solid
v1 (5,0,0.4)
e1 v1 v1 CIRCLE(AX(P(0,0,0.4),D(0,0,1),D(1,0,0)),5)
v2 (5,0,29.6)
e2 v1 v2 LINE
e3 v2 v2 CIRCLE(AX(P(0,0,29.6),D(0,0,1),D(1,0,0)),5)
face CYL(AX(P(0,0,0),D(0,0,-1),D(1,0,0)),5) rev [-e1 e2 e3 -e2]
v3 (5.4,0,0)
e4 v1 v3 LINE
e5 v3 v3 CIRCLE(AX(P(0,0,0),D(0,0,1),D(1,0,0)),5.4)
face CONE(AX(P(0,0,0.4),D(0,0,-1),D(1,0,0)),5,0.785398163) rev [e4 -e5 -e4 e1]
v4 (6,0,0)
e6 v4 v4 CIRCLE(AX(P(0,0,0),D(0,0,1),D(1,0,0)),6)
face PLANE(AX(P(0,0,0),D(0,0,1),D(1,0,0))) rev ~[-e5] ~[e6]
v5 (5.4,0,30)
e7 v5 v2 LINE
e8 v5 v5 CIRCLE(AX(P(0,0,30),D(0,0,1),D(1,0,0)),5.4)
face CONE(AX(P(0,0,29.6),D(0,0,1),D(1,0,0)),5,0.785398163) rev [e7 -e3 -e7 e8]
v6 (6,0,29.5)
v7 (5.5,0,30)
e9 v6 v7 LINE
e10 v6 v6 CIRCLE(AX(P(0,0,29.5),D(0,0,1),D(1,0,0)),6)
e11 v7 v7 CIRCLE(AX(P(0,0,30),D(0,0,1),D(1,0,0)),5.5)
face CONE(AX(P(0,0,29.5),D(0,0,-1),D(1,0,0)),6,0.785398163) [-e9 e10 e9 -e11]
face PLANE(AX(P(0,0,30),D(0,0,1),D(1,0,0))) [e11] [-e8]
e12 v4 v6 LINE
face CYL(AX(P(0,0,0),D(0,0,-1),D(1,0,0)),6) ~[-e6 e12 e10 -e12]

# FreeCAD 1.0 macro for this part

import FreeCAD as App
import Part
import Sketcher


def edges_at(feature, points):
    """Names of the edges that pass closest to the given points."""
    edges = feature.Shape.Edges
    near = lambda p: min(range(len(edges)), key=lambda i: edges[i].distToShape(Part.Vertex(*p))[0])
    return sorted({f"Edge{near(p) + 1}" for p in points})

doc = App.newDocument("Part")
params = doc.addObject("Spreadsheet::Sheet", "Params")
for row, (alias, value) in enumerate([
    ("sketch1_diameter", "12 mm"),
    ("sketch1_diameter2", "10 mm"),
    ("pad1_length", "30 mm"),
    ("chamfer_size", "0.5 mm"),
    ("chamfer2_size", "0.4 mm"),
    ("chamfer3_size", "0.4 mm"),
], start=1):
    params.set(f"A{row}", alias)
    params.set(f"B{row}", "=" + value)
    params.setAlias(f"B{row}", alias)

body = doc.addObject("PartDesign::Body", "Body")

sketch1 = body.newObject("Sketcher::SketchObject", "Sketch")
sketch1.AttachmentSupport = (doc.getObject("XY_Plane"), [""])
sketch1.MapMode = "FlatFace"
sketch1.addGeometry([
    Part.Circle(App.Vector(0, 0, 0), App.Vector(0, 0, 1), 6),
    Part.Circle(App.Vector(0, 0, 0), App.Vector(0, 0, 1), 5),
], False)
sketch1.addConstraint([
    Sketcher.Constraint("Coincident", 0, 3, -1, 1),
    Sketcher.Constraint("Coincident", 1, 3, -1, 1),
    Sketcher.Constraint("Diameter", 0, 12.0),
    Sketcher.Constraint("Diameter", 1, 10.0),
])
sketch1.setExpression("Constraints[2]", "Params.sketch1_diameter")
sketch1.setExpression("Constraints[3]", "Params.sketch1_diameter2")
pad1 = body.newObject("PartDesign::Pad", "Pad")
pad1.Profile = sketch1
pad1.setExpression("Length", "Params.pad1_length")
doc.recompute()

chamfer = body.newObject("PartDesign::Chamfer", "Chamfer")
chamfer.Base = (pad1, edges_at(pad1, [(-6, 0, 30)]))
chamfer.setExpression("Size", "Params.chamfer_size")
doc.recompute()

chamfer2 = body.newObject("PartDesign::Chamfer", "Chamfer001")
chamfer2.Base = (chamfer, edges_at(chamfer, [(-5, 0, 30)]))
chamfer2.setExpression("Size", "Params.chamfer2_size")
doc.recompute()

chamfer3 = body.newObject("PartDesign::Chamfer", "Chamfer002")
chamfer3.Base = (chamfer2, edges_at(chamfer2, [(-5, 0, 0)]))
chamfer3.setExpression("Size", "Params.chamfer3_size")

doc.recompute()
